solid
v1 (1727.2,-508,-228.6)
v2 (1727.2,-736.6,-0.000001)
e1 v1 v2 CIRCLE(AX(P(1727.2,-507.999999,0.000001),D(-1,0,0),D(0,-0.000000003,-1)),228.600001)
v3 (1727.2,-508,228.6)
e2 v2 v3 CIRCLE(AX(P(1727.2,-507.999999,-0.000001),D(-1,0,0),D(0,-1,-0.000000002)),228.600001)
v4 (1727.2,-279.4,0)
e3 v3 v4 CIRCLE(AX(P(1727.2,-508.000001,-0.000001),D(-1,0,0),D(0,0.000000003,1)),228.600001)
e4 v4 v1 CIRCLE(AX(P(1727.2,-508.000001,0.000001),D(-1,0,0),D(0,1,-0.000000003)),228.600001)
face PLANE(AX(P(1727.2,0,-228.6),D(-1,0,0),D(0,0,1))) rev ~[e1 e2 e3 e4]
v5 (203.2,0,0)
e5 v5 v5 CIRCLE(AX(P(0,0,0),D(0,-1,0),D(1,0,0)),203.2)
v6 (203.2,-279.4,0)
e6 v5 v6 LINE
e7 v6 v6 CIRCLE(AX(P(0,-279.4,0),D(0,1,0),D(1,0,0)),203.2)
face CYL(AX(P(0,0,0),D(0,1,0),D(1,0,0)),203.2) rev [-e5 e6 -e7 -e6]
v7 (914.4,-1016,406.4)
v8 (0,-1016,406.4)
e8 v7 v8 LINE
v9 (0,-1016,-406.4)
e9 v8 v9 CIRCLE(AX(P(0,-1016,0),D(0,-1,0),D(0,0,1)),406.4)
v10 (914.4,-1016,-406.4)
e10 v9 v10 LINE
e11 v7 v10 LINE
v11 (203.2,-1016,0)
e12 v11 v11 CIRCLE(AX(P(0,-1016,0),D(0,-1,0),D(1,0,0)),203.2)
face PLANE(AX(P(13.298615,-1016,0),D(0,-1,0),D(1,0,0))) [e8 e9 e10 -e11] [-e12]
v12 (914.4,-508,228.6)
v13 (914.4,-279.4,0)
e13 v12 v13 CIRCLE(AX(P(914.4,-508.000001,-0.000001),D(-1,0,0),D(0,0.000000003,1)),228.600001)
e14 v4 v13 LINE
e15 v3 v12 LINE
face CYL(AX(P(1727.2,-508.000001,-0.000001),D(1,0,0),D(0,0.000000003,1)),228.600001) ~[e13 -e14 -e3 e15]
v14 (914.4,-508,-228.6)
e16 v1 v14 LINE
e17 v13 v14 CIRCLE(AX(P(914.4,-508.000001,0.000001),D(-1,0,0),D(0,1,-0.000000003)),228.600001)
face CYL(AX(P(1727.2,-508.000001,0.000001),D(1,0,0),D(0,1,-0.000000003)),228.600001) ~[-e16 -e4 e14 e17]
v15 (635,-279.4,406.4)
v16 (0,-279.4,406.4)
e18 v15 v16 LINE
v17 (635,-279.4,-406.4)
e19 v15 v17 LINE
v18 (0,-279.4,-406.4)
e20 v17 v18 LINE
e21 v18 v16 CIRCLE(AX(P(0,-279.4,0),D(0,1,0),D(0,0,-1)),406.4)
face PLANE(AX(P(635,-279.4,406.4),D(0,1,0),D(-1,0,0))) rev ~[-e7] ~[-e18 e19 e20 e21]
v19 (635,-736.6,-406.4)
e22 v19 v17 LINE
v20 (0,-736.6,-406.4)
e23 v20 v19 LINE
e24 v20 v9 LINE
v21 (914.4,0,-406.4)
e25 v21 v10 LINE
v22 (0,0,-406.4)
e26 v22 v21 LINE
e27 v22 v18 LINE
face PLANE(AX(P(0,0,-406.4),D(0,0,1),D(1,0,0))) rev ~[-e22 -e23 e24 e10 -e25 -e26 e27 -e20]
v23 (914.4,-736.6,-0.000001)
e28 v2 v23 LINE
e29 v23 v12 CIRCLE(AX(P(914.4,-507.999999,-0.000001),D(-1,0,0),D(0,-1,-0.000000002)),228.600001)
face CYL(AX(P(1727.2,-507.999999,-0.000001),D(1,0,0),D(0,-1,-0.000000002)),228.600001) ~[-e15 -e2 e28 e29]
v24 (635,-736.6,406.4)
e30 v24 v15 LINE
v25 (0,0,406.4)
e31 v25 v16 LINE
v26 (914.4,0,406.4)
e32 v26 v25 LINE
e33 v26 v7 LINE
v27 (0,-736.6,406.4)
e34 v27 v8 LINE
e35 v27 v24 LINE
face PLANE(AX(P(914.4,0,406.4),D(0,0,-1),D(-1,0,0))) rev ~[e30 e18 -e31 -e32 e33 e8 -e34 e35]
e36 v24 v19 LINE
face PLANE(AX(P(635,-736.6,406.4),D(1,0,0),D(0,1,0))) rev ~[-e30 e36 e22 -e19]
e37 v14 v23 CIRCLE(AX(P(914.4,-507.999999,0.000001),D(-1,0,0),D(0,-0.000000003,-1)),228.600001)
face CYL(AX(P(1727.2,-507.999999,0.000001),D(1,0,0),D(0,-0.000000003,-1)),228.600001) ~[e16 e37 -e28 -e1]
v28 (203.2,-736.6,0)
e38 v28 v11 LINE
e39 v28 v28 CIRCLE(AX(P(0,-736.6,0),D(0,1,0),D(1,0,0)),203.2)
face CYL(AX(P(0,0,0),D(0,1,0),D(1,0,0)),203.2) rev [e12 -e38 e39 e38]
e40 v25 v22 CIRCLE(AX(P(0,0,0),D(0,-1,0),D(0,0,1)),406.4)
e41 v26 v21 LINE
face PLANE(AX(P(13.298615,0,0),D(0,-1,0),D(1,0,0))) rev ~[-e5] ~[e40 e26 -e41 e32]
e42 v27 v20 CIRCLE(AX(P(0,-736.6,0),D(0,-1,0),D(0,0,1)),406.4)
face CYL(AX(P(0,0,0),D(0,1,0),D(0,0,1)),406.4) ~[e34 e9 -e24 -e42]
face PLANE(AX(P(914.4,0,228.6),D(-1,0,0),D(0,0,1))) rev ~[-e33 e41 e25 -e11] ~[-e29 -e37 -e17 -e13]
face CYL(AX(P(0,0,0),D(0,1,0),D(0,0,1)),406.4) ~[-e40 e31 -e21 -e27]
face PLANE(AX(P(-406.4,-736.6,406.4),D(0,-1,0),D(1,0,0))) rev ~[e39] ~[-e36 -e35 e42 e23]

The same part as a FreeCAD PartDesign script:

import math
import FreeCAD as App
import Part
import Sketcher
from FreeCAD import Vector
Q = App.Units.Quantity

doc = App.newDocument("Part")
body = doc.addObject("PartDesign::Body", "Body")

# Sketch on XZ plane
sketch1 = doc.addObject("Sketcher::SketchObject", "Sketch")
body.addObject(sketch1)
sketch1.AttachmentSupport = (doc.XZ_Plane, [""])
sketch1.MapMode = "FlatFace"
sketch1.addGeometry([
    Part.ArcOfCircle(Part.Circle(Vector(0, 0, 0), Vector(0, 0, 1), 406.4), math.radians(90), math.radians(270)),  # 0
    Part.LineSegment(Vector(0, -406.4, 0), Vector(914.4, -406.4, 0)),  # 1
    Part.LineSegment(Vector(914.4, -406.4, 0), Vector(914.4, -228.6, 0)),  # 2
    Part.LineSegment(Vector(914.4, -228.6, 0), Vector(1727.2, -228.6, 0)),  # 3
    Part.LineSegment(Vector(1727.2, -228.6, 0), Vector(1727.2, 228.6, 0)),  # 4
    Part.LineSegment(Vector(1727.2, 228.6, 0), Vector(914.4, 228.6, 0)),  # 5
    Part.LineSegment(Vector(914.4, 228.6, 0), Vector(914.4, 406.4, 0)),  # 6
    Part.LineSegment(Vector(914.4, 406.4, 0), Vector(0, 406.4, 0)),  # 7
    Part.Circle(Vector(0, 0, 0), Vector(0, 0, 1), 203.2),  # 8
], False)
sketch1.addConstraint([
    Sketcher.Constraint("Tangent", 0, 2, 1, 1),
    Sketcher.Constraint("Coincident", 1, 2, 2, 1),
    Sketcher.Constraint("Coincident", 2, 2, 3, 1),
    Sketcher.Constraint("Coincident", 3, 2, 4, 1),
    Sketcher.Constraint("Coincident", 4, 2, 5, 1),
    Sketcher.Constraint("Coincident", 5, 2, 6, 1),
    Sketcher.Constraint("Coincident", 6, 2, 7, 1),
    Sketcher.Constraint("Tangent", 7, 2, 0, 1),
    Sketcher.Constraint("Horizontal", 1),
    Sketcher.Constraint("Vertical", 2),
    Sketcher.Constraint("Horizontal", 3),
    Sketcher.Constraint("Vertical", 4),
    Sketcher.Constraint("Horizontal", 5),
    Sketcher.Constraint("Vertical", 6),
    Sketcher.Constraint("Horizontal", 7),
    Sketcher.Constraint("Coincident", 0, 3, -1, 1),
    Sketcher.Constraint("Coincident", 8, 3, -1, 1),
    Sketcher.Constraint("Symmetric", 2, 2, 5, 2, -1),
    Sketcher.Constraint("Diameter", 8, Q("16 in")),
    Sketcher.Constraint("Radius", 0, Q("16 in")),
    Sketcher.Constraint("DistanceX", 1, 1, 1, 2, Q("36 in")),
    Sketcher.Constraint("DistanceX", 3, 1, 3, 2, Q("32 in")),
    Sketcher.Constraint("DistanceY", 2, 1, 2, 2, Q("7 in")),
])
pad1 = doc.addObject("PartDesign::Pad", "Pad")
body.addObject(pad1)
pad1.Profile = sketch1
pad1.Length = Q("40 in")

# Sketch on XY plane
sketch2 = doc.addObject("Sketcher::SketchObject", "Sketch001")
body.addObject(sketch2)
sketch2.AttachmentSupport = (doc.XY_Plane, [""])
sketch2.MapMode = "FlatFace"
sketch2.AttachmentOffset = App.Placement(Vector(0, 0, 16 * 25.4), App.Rotation())
sketch2.addGeometry([
    Part.LineSegment(Vector(-406.4, -279.4, 0), Vector(-406.4, -736.6, 0)),
    Part.LineSegment(Vector(-406.4, -736.6, 0), Vector(-279.4, -736.6, 0)),
    Part.LineSegment(Vector(-279.4, -736.6, 0), Vector(-279.4, -279.4, 0)),
    Part.LineSegment(Vector(-279.4, -279.4, 0), Vector(-406.4, -279.4, 0)),
], False)
sketch2.addConstraint([
    Sketcher.Constraint("Coincident", 0, 2, 1, 1),
    Sketcher.Constraint("Coincident", 1, 2, 2, 1),
    Sketcher.Constraint("Coincident", 2, 2, 3, 1),
    Sketcher.Constraint("Coincident", 3, 2, 0, 1),
    Sketcher.Constraint("Vertical", 0),
    Sketcher.Constraint("Horizontal", 1),
    Sketcher.Constraint("Vertical", 2),
    Sketcher.Constraint("Horizontal", 3),
    Sketcher.Constraint("DistanceX", 1, 1, 1, 2, Q("5 in")),
    Sketcher.Constraint("DistanceY", 0, 2, 0, 1, Q("18 in")),
    Sketcher.Constraint("DistanceX", 0, 2, -1, 1, Q("16 in")),
    Sketcher.Constraint("DistanceY", 0, 2, -1, 1, Q("29 in")),
])
pocket1 = doc.addObject("PartDesign::Pocket", "Pocket")
body.addObject(pocket1)
pocket1.Profile = sketch2
pocket1.Type = "ThroughAll"

# Sketch on XY plane
sketch3 = doc.addObject("Sketcher::SketchObject", "Sketch002")
body.addObject(sketch3)
sketch3.AttachmentSupport = (doc.XY_Plane, [""])
sketch3.MapMode = "FlatFace"
sketch3.AttachmentOffset = App.Placement(Vector(0, 0, 16 * 25.4), App.Rotation())
sketch3.addGeometry([
    Part.LineSegment(Vector(635, -736.6, 0), Vector(635, -279.4, 0)),
    Part.LineSegment(Vector(635, -279.4, 0), Vector(-406.4, -279.4, 0)),
    Part.LineSegment(Vector(-406.4, -279.4, 0), Vector(-406.4, -736.6, 0)),
    Part.LineSegment(Vector(-406.4, -736.6, 0), Vector(635, -736.6, 0)),
], False)
sketch3.addConstraint([
    Sketcher.Constraint("Coincident", 0, 2, 1, 1),
    Sketcher.Constraint("Coincident", 1, 2, 2, 1),
    Sketcher.Constraint("Coincident", 2, 2, 3, 1),
    Sketcher.Constraint("Coincident", 3, 2, 0, 1),
    Sketcher.Constraint("Vertical", 0),
    Sketcher.Constraint("Horizontal", 1),
    Sketcher.Constraint("Vertical", 2),
    Sketcher.Constraint("Horizontal", 3),
    Sketcher.Constraint("DistanceX", 1, 2, 1, 1, Q("41 in")),
    Sketcher.Constraint("DistanceY", 0, 1, 0, 2, Q("18 in")),
    Sketcher.Constraint("DistanceX", -1, 1, 0, 2, Q("25 in")),
    Sketcher.Constraint("DistanceY", 0, 2, -1, 1, Q("11 in")),
])
pocket2 = doc.addObject("PartDesign::Pocket", "Pocket001")
body.addObject(pocket2)
pocket2.Profile = sketch3
pocket2.Type = "ThroughAll"

# Sketch on XY plane
sketch4 = doc.addObject("Sketcher::SketchObject", "Sketch003")
body.addObject(sketch4)
sketch4.AttachmentSupport = (doc.XY_Plane, [""])
sketch4.MapMode = "FlatFace"
sketch4.AttachmentOffset = App.Placement(Vector(0, 0, 9 * 25.4), App.Rotation())
sketch4.addGeometry([
    Part.LineSegment(Vector(914.4, 0, 0), Vector(914.4, -279.4, 0)),  # 0
    Part.LineSegment(Vector(914.4, -279.4, 0), Vector(1727.2, -279.4, 0)),  # 1
    Part.LineSegment(Vector(1727.2, -279.4, 0), Vector(1727.2, 0, 0)),  # 2
    Part.LineSegment(Vector(1727.2, 0, 0), Vector(914.4, 0, 0)),  # 3
    Part.LineSegment(Vector(914.4, -736.6, 0), Vector(914.4, -1016, 0)),  # 4
    Part.LineSegment(Vector(914.4, -1016, 0), Vector(1727.2, -1016, 0)),  # 5
    Part.LineSegment(Vector(1727.2, -1016, 0), Vector(1727.2, -736.6, 0)),  # 6
    Part.LineSegment(Vector(1727.2, -736.6, 0), Vector(914.4, -736.6, 0)),  # 7
], False)
sketch4.addConstraint([
    Sketcher.Constraint("Coincident", 0, 2, 1, 1),
    Sketcher.Constraint("Coincident", 1, 2, 2, 1),
    Sketcher.Constraint("Coincident", 2, 2, 3, 1),
    Sketcher.Constraint("Coincident", 3, 2, 0, 1),
    Sketcher.Constraint("Coincident", 4, 2, 5, 1),
    Sketcher.Constraint("Coincident", 5, 2, 6, 1),
    Sketcher.Constraint("Coincident", 6, 2, 7, 1),
    Sketcher.Constraint("Coincident", 7, 2, 4, 1),
    Sketcher.Constraint("Vertical", 0),
    Sketcher.Constraint("Horizontal", 1),
    Sketcher.Constraint("Vertical", 2),
    Sketcher.Constraint("Horizontal", 3),
    Sketcher.Constraint("Vertical", 4),
    Sketcher.Constraint("Horizontal", 5),
    Sketcher.Constraint("Vertical", 6),
    Sketcher.Constraint("Horizontal", 7),
    Sketcher.Constraint("PointOnObject", 2, 2, -1),
    Sketcher.Constraint("Vertical", 3, 2, 4, 2),
    Sketcher.Constraint("Vertical", 2, 2, 5, 2),
    Sketcher.Constraint("Equal", 2, 4),
    Sketcher.Constraint("DistanceX", 1, 1, 1, 2, Q("32 in")),
    Sketcher.Constraint("DistanceY", 0, 2, 0, 1, Q("11 in")),
    Sketcher.Constraint("DistanceX", -1, 1, 0, 2, Q("36 in")),
    Sketcher.Constraint("DistanceY", 4, 2, -1, 1, Q("40 in")),
])
pocket3 = doc.addObject("PartDesign::Pocket", "Pocket002")
body.addObject(pocket3)
pocket3.Profile = sketch4
pocket3.Type = "ThroughAll"

# Sketch on YZ plane
sketch5 = doc.addObject("Sketcher::SketchObject", "Sketch004")
body.addObject(sketch5)
sketch5.AttachmentSupport = (doc.YZ_Plane, [""])
sketch5.MapMode = "FlatFace"
sketch5.AttachmentOffset = App.Placement(Vector(0, 0, 68 * 25.4), App.Rotation())
sketch5.addGeometry([
    Part.ArcOfCircle(Part.Circle(Vector(-508.000001, -0.000001, 0), Vector(0, 0, 1), 228.600001), math.radians(0), math.radians(90)),  # 0
    Part.LineSegment(Vector(-279.4, 0, 0), Vector(-279.4, 228.6, 0)),  # 1
    Part.LineSegment(Vector(-279.4, 228.6, 0), Vector(-508, 228.6, 0)),  # 2
    Part.LineSegment(Vector(-279.4, -228.6, 0), Vector(-279.4, 0, 0)),  # 3
    Part.ArcOfCircle(Part.Circle(Vector(-508.000001, 0.000001, 0), Vector(0, 0, 1), 228.600001), math.radians(-90), math.radians(0)),  # 4
    Part.LineSegment(Vector(-508, -228.6, 0), Vector(-279.4, -228.6, 0)),  # 5
    Part.LineSegment(Vector(-736.6, -228.6, 0), Vector(-508, -228.6, 0)),  # 6
    Part.ArcOfCircle(Part.Circle(Vector(-507.999999, 0.000001, 0), Vector(0, 0, 1), 228.600001), math.radians(-180), math.radians(-90)),  # 7
    Part.LineSegment(Vector(-736.6, -0.000001, 0), Vector(-736.6, -228.6, 0)),  # 8
    Part.ArcOfCircle(Part.Circle(Vector(-507.999999, -0.000001, 0), Vector(0, 0, 1), 228.600001), math.radians(90), math.radians(180)),  # 9
    Part.LineSegment(Vector(-508, 228.6, 0), Vector(-736.6, 228.6, 0)),  # 10
    Part.LineSegment(Vector(-736.6, 228.6, 0), Vector(-736.6, -0.000001, 0)),  # 11
], False)
sketch5.addConstraint([
    Sketcher.Constraint("Tangent", 0, 1, 1, 1),
    Sketcher.Constraint("Coincident", 1, 2, 2, 1),
    Sketcher.Constraint("Tangent", 2, 2, 0, 2),
    Sketcher.Constraint("Tangent", 3, 2, 4, 2),
    Sketcher.Constraint("Tangent", 4, 1, 5, 1),
    Sketcher.Constraint("Coincident", 5, 2, 3, 1),
    Sketcher.Constraint("Tangent", 6, 2, 7, 2),
    Sketcher.Constraint("Tangent", 7, 1, 8, 1),
    Sketcher.Constraint("Coincident", 8, 2, 6, 1),
    Sketcher.Constraint("Tangent", 9, 1, 10, 1),
    Sketcher.Constraint("Coincident", 10, 2, 11, 1),
    Sketcher.Constraint("Tangent", 11, 2, 9, 2),
    Sketcher.Constraint("Vertical", 1),
    Sketcher.Constraint("Horizontal", 2),
    Sketcher.Constraint("Vertical", 3),
    Sketcher.Constraint("Horizontal", 5),
    Sketcher.Constraint("Horizontal", 6),
    Sketcher.Constraint("Vertical", 8),
    Sketcher.Constraint("Horizontal", 10),
    Sketcher.Constraint("Vertical", 11),
    Sketcher.Constraint("Coincident", 4, 3, 0, 3),
    Sketcher.Constraint("Coincident", 7, 3, 0, 3),
    Sketcher.Constraint("Coincident", 9, 3, 0, 3),
    Sketcher.Constraint("Equal", 0, 4),
    Sketcher.Constraint("Equal", 4, 7),
    Sketcher.Constraint("Equal", 7, 9),
    Sketcher.Constraint("PointOnObject", 0, 3, -1),
    Sketcher.Constraint("Radius", 0, Q("9 in")),
    Sketcher.Constraint("DistanceX", 0, 3, -1, 1, Q("20 in")),
])
pocket4 = doc.addObject("PartDesign::Pocket", "Pocket003")
body.addObject(pocket4)
pocket4.Profile = sketch5
pocket4.Length = Q("32 in")

doc.recompute()
